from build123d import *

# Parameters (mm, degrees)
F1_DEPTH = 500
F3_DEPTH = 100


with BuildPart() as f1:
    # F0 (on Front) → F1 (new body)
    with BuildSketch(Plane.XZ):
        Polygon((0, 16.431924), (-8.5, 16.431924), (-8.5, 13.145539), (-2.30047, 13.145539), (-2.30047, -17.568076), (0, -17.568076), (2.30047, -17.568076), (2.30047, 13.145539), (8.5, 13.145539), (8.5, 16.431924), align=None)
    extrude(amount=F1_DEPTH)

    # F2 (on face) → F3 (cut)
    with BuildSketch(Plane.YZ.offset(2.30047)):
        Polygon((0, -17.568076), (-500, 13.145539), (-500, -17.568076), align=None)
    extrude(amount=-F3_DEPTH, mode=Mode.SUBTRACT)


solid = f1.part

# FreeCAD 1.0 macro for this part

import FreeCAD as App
import Part
import Sketcher

V = App.Vector
Q = App.Units.Quantity

doc = App.newDocument("Part")
body = doc.addObject("PartDesign::Body", "Body")

# Sketch on XZ plane
sketch1 = body.newObject("Sketcher::SketchObject", "Sketch")
sketch1.AttachmentSupport = (doc.getObject("XZ_Plane"), [""])
sketch1.MapMode = "FlatFace"
sketch1.addGeometry(Part.LineSegment(V(-8.5, 16.4, 0), V(-8.5, 13.1, 0)), False)
sketch1.addGeometry(Part.LineSegment(V(-8.5, 13.1, 0), V(-2.3, 13.1, 0)), False)
sketch1.addGeometry(Part.LineSegment(V(-2.3, 13.1, 0), V(-2.3, -17.6, 0)), False)
sketch1.addGeometry(Part.LineSegment(V(-2.3, -17.6, 0), V(2.3, -17.6, 0)), False)
sketch1.addGeometry(Part.LineSegment(V(2.3, -17.6, 0), V(2.3, 13.1, 0)), False)
sketch1.addGeometry(Part.LineSegment(V(2.3, 13.1, 0), V(8.5, 13.1, 0)), False)
sketch1.addGeometry(Part.LineSegment(V(8.5, 13.1, 0), V(8.5, 16.4, 0)), False)
sketch1.addGeometry(Part.LineSegment(V(8.5, 16.4, 0), V(-8.5, 16.4, 0)), False)
sketch1.addConstraint(Sketcher.Constraint("Coincident", 0, 2, 1, 1))
sketch1.addConstraint(Sketcher.Constraint("Coincident", 1, 2, 2, 1))
sketch1.addConstraint(Sketcher.Constraint("Coincident", 2, 2, 3, 1))
sketch1.addConstraint(Sketcher.Constraint("Coincident", 3, 2, 4, 1))
sketch1.addConstraint(Sketcher.Constraint("Coincident", 4, 2, 5, 1))
sketch1.addConstraint(Sketcher.Constraint("Coincident", 5, 2, 6, 1))
sketch1.addConstraint(Sketcher.Constraint("Coincident", 6, 2, 7, 1))
sketch1.addConstraint(Sketcher.Constraint("Coincident", 7, 2, 0, 1))
sketch1.addConstraint(Sketcher.Constraint("Vertical", 0))
sketch1.addConstraint(Sketcher.Constraint("Horizontal", 1))
sketch1.addConstraint(Sketcher.Constraint("Vertical", 2))
sketch1.addConstraint(Sketcher.Constraint("Horizontal", 3))
sketch1.addConstraint(Sketcher.Constraint("Vertical", 4))
sketch1.addConstraint(Sketcher.Constraint("Horizontal", 5))
sketch1.addConstraint(Sketcher.Constraint("Vertical", 6))
sketch1.addConstraint(Sketcher.Constraint("Horizontal", 7))
sketch1.addConstraint(Sketcher.Constraint("Symmetric", 1, 2, 4, 2, -2))
sketch1.addConstraint(Sketcher.Constraint("Equal", 1, 5))
sketch1.addConstraint(Sketcher.Constraint("DistanceX", 7, 2, 7, 1, Q("17 mm")))
sketch1.addConstraint(Sketcher.Constraint("DistanceY", 3, 2, 6, 2, Q("34 mm")))
sketch1.addConstraint(Sketcher.Constraint("DistanceX", 1, 1, 1, 2, Q("6.19953 mm")))
sketch1.addConstraint(Sketcher.Constraint("DistanceY", 0, 2, 0, 1, Q("3.286385 mm")))
sketch1.addConstraint(Sketcher.Constraint("DistanceY", -1, 1, 0, 2, Q("13.145539 mm")))
pad1 = body.newObject("PartDesign::Pad", "Pad")
pad1.Profile = sketch1
pad1.Length = 500

# Sketch on YZ plane
sketch2 = body.newObject("Sketcher::SketchObject", "Sketch001")
sketch2.AttachmentSupport = (doc.getObject("YZ_Plane"), [""])
sketch2.MapMode = "FlatFace"
sketch2.AttachmentOffset = App.Placement(V(0, 0, 2.30047), App.Rotation())
sketch2.addGeometry(Part.LineSegment(V(0, -18, 0), V(-500, 13, 0)), False)
sketch2.addGeometry(Part.LineSegment(V(-500, 13, 0), V(-500, -18, 0)), False)
sketch2.addGeometry(Part.LineSegment(V(-500, -18, 0), V(0, -18, 0)), False)
sketch2.addConstraint(Sketcher.Constraint("Coincident", 0, 2, 1, 1))
sketch2.addConstraint(Sketcher.Constraint("Coincident", 1, 2, 2, 1))
sketch2.addConstraint(Sketcher.Constraint("Coincident", 2, 2, 0, 1))
sketch2.addConstraint(Sketcher.Constraint("Vertical", 1))
sketch2.addConstraint(Sketcher.Constraint("Horizontal", 2))
sketch2.addConstraint(Sketcher.Constraint("PointOnObject", 2, 2, -2))
sketch2.addConstraint(Sketcher.Constraint("DistanceX", 2, 1, 2, 2, Q("500 mm")))
sketch2.addConstraint(Sketcher.Constraint("DistanceY", 1, 2, 1, 1, Q("30.713615 mm")))
sketch2.addConstraint(Sketcher.Constraint("DistanceY", -1, 1, 0, 2, Q("13.145539 mm")))
pocket1 = body.newObject("PartDesign::Pocket", "Pocket")
pocket1.Profile = sketch2
pocket1.Length = 100

doc.recompute()
